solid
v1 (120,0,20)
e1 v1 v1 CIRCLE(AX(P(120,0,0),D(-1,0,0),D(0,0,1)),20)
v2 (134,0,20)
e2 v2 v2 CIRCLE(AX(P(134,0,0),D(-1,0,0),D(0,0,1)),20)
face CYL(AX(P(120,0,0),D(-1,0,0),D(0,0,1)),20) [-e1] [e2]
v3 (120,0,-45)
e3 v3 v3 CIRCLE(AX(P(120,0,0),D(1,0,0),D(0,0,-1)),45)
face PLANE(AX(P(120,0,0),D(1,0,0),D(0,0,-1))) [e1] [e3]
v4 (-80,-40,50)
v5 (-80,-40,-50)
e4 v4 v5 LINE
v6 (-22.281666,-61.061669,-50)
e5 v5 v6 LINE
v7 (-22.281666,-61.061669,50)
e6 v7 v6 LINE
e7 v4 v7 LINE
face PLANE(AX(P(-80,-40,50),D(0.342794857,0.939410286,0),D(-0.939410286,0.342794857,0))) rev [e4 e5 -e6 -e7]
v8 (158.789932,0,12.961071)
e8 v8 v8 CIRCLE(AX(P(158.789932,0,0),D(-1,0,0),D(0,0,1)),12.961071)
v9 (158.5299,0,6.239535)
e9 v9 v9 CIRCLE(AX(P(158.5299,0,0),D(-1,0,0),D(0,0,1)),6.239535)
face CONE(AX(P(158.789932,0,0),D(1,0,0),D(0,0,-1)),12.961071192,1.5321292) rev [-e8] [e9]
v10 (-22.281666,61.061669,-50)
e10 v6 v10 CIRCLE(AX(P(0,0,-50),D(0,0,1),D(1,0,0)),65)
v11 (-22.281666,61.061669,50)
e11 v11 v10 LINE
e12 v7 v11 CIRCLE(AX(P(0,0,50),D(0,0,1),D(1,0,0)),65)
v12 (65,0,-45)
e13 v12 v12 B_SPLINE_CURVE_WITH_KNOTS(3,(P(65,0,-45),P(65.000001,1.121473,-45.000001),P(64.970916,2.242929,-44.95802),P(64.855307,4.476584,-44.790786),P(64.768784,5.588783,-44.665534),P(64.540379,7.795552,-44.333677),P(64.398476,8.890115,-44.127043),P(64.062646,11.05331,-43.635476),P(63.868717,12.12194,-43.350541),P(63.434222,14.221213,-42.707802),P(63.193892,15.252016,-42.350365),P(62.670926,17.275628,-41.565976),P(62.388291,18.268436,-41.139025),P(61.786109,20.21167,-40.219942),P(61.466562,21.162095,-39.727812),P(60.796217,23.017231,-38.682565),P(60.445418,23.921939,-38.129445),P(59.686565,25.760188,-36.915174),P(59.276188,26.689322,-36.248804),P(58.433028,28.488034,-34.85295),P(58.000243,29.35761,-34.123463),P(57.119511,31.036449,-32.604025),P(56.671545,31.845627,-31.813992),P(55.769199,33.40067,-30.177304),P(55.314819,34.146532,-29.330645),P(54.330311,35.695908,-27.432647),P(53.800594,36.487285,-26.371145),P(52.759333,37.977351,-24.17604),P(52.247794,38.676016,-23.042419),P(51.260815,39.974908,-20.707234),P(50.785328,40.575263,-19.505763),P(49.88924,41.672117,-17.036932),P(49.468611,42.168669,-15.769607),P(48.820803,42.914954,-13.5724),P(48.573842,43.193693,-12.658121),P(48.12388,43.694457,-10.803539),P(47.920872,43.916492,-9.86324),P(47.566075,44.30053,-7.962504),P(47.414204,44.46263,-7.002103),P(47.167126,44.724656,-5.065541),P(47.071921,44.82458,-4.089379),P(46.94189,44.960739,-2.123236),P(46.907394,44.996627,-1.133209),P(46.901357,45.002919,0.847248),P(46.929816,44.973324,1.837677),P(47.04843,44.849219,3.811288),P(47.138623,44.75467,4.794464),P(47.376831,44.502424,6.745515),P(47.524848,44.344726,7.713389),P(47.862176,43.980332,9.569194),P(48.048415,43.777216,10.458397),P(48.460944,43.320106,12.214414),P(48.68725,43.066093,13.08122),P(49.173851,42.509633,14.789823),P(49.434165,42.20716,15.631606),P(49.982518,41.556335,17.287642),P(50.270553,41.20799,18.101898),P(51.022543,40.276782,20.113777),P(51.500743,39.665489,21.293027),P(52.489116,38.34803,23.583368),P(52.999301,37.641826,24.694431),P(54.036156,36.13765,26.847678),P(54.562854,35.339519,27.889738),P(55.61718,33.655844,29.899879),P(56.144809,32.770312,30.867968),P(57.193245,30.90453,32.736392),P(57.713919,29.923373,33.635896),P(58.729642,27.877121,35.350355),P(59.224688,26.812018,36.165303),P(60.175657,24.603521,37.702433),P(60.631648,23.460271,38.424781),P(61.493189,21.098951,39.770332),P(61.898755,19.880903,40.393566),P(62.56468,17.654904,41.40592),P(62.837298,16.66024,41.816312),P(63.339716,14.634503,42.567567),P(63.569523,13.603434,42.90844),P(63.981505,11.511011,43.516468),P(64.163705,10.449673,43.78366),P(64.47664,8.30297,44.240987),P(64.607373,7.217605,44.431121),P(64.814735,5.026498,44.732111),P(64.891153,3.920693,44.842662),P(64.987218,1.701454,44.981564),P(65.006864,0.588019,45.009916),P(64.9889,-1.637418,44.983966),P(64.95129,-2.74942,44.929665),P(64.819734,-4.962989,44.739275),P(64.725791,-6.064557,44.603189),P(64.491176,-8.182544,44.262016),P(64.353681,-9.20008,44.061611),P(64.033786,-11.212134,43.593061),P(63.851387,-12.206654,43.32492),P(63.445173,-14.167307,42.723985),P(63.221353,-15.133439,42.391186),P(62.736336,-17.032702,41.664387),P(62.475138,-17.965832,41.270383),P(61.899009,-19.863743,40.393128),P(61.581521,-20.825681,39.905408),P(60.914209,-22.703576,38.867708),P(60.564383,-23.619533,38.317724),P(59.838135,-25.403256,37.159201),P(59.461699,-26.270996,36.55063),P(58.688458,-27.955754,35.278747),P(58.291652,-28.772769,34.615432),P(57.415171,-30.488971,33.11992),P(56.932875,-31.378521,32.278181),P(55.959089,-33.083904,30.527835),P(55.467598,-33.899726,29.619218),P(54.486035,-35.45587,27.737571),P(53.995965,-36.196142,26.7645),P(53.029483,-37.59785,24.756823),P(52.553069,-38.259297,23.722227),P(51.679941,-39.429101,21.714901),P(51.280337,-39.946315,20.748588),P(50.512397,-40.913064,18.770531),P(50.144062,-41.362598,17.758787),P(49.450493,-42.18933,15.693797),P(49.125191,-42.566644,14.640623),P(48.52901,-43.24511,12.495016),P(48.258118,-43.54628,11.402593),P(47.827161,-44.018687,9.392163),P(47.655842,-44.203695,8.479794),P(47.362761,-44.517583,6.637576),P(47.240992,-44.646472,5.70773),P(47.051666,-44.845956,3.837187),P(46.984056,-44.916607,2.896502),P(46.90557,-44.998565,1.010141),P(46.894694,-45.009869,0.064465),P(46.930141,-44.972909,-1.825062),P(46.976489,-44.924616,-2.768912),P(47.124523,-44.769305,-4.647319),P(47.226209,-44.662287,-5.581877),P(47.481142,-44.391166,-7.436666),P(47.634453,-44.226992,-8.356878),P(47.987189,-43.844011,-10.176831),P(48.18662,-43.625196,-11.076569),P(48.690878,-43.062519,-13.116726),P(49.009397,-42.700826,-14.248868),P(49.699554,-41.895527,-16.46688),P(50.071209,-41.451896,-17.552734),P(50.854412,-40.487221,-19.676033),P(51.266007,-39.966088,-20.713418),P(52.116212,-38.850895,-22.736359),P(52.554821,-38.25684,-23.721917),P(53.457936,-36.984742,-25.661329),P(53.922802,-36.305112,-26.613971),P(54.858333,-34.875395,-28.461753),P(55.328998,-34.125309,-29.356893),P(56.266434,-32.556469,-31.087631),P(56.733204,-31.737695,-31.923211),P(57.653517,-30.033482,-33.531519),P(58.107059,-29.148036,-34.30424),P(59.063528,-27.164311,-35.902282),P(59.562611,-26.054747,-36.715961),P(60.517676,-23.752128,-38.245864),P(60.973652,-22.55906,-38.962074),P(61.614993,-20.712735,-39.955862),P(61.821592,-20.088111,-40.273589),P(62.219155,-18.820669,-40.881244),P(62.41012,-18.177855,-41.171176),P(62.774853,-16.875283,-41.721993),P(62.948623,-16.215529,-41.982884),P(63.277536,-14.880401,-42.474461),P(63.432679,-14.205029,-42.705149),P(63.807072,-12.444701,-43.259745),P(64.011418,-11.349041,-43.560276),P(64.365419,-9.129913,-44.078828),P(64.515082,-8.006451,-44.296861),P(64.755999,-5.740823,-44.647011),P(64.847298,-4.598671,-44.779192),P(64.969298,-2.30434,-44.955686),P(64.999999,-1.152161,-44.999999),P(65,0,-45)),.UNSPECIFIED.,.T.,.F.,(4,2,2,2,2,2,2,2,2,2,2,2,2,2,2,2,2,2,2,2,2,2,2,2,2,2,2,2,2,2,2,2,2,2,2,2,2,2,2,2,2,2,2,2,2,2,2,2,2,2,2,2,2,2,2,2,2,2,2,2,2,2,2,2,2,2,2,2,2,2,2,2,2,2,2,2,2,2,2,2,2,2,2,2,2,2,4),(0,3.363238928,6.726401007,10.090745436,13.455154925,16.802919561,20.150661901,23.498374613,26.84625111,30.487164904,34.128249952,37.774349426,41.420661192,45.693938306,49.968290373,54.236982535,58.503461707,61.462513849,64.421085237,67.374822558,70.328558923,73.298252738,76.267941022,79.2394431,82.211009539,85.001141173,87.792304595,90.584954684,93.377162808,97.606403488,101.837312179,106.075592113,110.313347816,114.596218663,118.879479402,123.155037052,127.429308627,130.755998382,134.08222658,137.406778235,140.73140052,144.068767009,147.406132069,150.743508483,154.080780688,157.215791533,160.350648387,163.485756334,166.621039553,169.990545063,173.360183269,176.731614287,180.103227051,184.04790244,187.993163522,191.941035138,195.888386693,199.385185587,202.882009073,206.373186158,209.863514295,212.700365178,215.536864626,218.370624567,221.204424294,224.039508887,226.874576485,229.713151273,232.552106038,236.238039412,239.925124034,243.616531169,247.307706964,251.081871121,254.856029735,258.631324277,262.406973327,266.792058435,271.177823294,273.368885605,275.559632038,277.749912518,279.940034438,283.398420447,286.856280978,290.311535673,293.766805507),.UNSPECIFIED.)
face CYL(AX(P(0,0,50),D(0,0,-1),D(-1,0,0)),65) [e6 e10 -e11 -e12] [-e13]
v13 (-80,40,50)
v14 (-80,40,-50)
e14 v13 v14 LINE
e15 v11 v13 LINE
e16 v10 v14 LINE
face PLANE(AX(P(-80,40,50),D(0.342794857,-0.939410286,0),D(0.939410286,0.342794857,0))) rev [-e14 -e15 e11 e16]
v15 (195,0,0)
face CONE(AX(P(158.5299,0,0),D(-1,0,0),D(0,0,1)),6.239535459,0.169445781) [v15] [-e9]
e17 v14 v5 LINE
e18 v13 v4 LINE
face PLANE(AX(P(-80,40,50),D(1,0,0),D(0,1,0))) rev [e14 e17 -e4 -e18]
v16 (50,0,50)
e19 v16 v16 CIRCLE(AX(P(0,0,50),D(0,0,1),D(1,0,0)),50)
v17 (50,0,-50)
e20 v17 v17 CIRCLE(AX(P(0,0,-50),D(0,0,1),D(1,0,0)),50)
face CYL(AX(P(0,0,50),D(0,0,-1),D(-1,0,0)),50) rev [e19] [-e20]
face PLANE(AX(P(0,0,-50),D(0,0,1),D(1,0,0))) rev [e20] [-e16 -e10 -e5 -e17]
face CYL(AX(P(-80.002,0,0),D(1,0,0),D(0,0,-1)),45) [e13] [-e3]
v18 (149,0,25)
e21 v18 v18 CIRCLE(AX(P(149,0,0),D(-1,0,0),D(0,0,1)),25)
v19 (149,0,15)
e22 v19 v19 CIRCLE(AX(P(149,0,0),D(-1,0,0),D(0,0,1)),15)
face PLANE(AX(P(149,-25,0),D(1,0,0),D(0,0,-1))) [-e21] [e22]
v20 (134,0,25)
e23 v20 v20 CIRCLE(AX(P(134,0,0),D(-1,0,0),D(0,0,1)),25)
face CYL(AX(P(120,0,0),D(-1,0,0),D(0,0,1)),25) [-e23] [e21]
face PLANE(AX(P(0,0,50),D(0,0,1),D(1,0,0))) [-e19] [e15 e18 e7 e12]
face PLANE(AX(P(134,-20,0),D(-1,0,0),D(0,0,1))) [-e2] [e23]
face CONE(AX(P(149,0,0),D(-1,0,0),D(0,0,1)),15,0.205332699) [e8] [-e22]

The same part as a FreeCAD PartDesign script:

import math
import FreeCAD as App
import Part
import Sketcher
Q = App.Units.Quantity

doc = App.newDocument("Part")
body = doc.addObject("PartDesign::Body", "Body")

sketch1 = body.newObject("Sketcher::SketchObject", "Sketch")
sketch1.AttachmentSupport = (doc.getObject("XY_Plane"), [""])
sketch1.MapMode = "FlatFace"
sketch1.addGeometry([
    Part.LineSegment(App.Vector(-80, 40, 0), App.Vector(-80, -40, 0)),
    Part.LineSegment(App.Vector(-80, -40, 0), App.Vector(-22, -61, 0)),
    Part.ArcOfCircle(Part.Circle(App.Vector(0, 0, 0), App.Vector(0, 0, 1), 65), math.radians(-110), math.radians(110)),
    Part.LineSegment(App.Vector(-22, 61, 0), App.Vector(-80, 40, 0)),
    Part.Circle(App.Vector(0, 0, 0), App.Vector(0, 0, 1), 50),
], False)
sketch1.addConstraint([
    Sketcher.Constraint("Coincident", 0, 2, 1, 1),
    Sketcher.Constraint("Tangent", 1, 2, 2, 1),
    Sketcher.Constraint("Tangent", 2, 2, 3, 1),
    Sketcher.Constraint("Coincident", 3, 2, 0, 1),
    Sketcher.Constraint("Vertical", 0),
    Sketcher.Constraint("Coincident", 2, 3, -1, 1),
    Sketcher.Constraint("Coincident", 4, 3, -1, 1),
    Sketcher.Constraint("Vertical", 1, 2, 2, 2),
    Sketcher.Constraint("Diameter", 4, Q("100 mm")),
    Sketcher.Constraint("Radius", 2, Q("65 mm")),
    Sketcher.Constraint("DistanceY", 0, 2, 0, 1, Q("80 mm")),
    Sketcher.Constraint("DistanceX", 0, 2, -1, 1, Q("80 mm")),
])
pad1 = body.newObject("PartDesign::Pad", "Pad")
pad1.Profile = sketch1
pad1.Length = 100
pad1.Midplane = True

sketch2 = body.newObject("Sketcher::SketchObject", "Sketch001")
sketch2.AttachmentSupport = (doc.getObject("YZ_Plane"), [""])
sketch2.MapMode = "FlatFace"
sketch2.AttachmentOffset = App.Placement(App.Vector(0, 0, 120), App.Rotation())
sketch2.addGeometry(Part.Circle(App.Vector(0, 0, 0), App.Vector(0, 0, 1), 45), False)
sketch2.addConstraint([
    Sketcher.Constraint("Coincident", 0, 3, -1, 1),
    Sketcher.Constraint("Diameter", 0, Q("90 mm")),
])
pad2 = body.newObject("PartDesign::Pad", "Pad001")
pad2.Profile = sketch2
pad2.Type = "UpToFirst"
pad2.Reversed = True

sketch3 = body.newObject("Sketcher::SketchObject", "Sketch002")
sketch3.AttachmentSupport = (doc.getObject("XY_Plane"), [""])
sketch3.MapMode = "FlatFace"
sketch3.addGeometry([
    Part.LineSegment(App.Vector(120, -20, 0), App.Vector(134, -20, 0)),
    Part.LineSegment(App.Vector(134, -20, 0), App.Vector(134, -25, 0)),
    Part.LineSegment(App.Vector(134, -25, 0), App.Vector(149, -25, 0)),
    Part.LineSegment(App.Vector(149, -25, 0), App.Vector(149, -15, 0)),
    Part.LineSegment(App.Vector(149, -15, 0), App.Vector(159, -13, 0)),
    Part.LineSegment(App.Vector(159, -13, 0), App.Vector(159, -6, 0)),
    Part.LineSegment(App.Vector(159, -6, 0), App.Vector(195, 0, 0)),
    Part.LineSegment(App.Vector(195, 0, 0), App.Vector(120, 0, 0)),
    Part.LineSegment(App.Vector(120, 0, 0), App.Vector(120, -20, 0)),
], False)
sketch3.addConstraint([
    Sketcher.Constraint("Coincident", 0, 2, 1, 1),
    Sketcher.Constraint("Coincident", 1, 2, 2, 1),
    Sketcher.Constraint("Coincident", 2, 2, 3, 1),
    Sketcher.Constraint("Coincident", 3, 2, 4, 1),
    Sketcher.Constraint("Coincident", 4, 2, 5, 1),
    Sketcher.Constraint("Coincident", 5, 2, 6, 1),
    Sketcher.Constraint("Coincident", 6, 2, 7, 1),
    Sketcher.Constraint("Coincident", 7, 2, 8, 1),
    Sketcher.Constraint("Coincident", 8, 2, 0, 1),
    Sketcher.Constraint("Horizontal", 0),
    Sketcher.Constraint("Vertical", 1),
    Sketcher.Constraint("Horizontal", 2),
    Sketcher.Constraint("Vertical", 3),
    Sketcher.Constraint("Horizontal", 7),
    Sketcher.Constraint("Vertical", 8),
    Sketcher.Constraint("PointOnObject", 6, 2, -1),
    Sketcher.Constraint("DistanceX", 0, 1, 0, 2, Q("14 mm")),
    Sketcher.Constraint("DistanceX", 2, 1, 2, 2, Q("15 mm")),
    Sketcher.Constraint("DistanceX", 7, 2, 7, 1, Q("75 mm")),
    Sketcher.Constraint("DistanceY", 1, 2, 1, 1, Q("5 mm")),
    Sketcher.Constraint("DistanceY", 3, 1, 3, 2, Q("10 mm")),
    Sketcher.Constraint("DistanceY", 8, 2, 8, 1, Q("20 mm")),
    Sketcher.Constraint("Distance", 4, Q("10 mm")),
    Sketcher.Constraint("Distance", 6, Q("37 mm")),
    Sketcher.Constraint("DistanceX", -1, 1, 0, 2, Q("134 mm")),
    Sketcher.Constraint("DistanceX", -1, 1, 5, 2, Q("158.5299 mm")),
    Sketcher.Constraint("DistanceY", 4, 2, -1, 1, Q("12.961071 mm")),
])
revolution = body.newObject("PartDesign::Revolution", "Revolution")
revolution.Profile = sketch3
revolution.ReferenceAxis = (sketch3, ["H_Axis"])
revolution.Angle = 360

doc.recompute()
